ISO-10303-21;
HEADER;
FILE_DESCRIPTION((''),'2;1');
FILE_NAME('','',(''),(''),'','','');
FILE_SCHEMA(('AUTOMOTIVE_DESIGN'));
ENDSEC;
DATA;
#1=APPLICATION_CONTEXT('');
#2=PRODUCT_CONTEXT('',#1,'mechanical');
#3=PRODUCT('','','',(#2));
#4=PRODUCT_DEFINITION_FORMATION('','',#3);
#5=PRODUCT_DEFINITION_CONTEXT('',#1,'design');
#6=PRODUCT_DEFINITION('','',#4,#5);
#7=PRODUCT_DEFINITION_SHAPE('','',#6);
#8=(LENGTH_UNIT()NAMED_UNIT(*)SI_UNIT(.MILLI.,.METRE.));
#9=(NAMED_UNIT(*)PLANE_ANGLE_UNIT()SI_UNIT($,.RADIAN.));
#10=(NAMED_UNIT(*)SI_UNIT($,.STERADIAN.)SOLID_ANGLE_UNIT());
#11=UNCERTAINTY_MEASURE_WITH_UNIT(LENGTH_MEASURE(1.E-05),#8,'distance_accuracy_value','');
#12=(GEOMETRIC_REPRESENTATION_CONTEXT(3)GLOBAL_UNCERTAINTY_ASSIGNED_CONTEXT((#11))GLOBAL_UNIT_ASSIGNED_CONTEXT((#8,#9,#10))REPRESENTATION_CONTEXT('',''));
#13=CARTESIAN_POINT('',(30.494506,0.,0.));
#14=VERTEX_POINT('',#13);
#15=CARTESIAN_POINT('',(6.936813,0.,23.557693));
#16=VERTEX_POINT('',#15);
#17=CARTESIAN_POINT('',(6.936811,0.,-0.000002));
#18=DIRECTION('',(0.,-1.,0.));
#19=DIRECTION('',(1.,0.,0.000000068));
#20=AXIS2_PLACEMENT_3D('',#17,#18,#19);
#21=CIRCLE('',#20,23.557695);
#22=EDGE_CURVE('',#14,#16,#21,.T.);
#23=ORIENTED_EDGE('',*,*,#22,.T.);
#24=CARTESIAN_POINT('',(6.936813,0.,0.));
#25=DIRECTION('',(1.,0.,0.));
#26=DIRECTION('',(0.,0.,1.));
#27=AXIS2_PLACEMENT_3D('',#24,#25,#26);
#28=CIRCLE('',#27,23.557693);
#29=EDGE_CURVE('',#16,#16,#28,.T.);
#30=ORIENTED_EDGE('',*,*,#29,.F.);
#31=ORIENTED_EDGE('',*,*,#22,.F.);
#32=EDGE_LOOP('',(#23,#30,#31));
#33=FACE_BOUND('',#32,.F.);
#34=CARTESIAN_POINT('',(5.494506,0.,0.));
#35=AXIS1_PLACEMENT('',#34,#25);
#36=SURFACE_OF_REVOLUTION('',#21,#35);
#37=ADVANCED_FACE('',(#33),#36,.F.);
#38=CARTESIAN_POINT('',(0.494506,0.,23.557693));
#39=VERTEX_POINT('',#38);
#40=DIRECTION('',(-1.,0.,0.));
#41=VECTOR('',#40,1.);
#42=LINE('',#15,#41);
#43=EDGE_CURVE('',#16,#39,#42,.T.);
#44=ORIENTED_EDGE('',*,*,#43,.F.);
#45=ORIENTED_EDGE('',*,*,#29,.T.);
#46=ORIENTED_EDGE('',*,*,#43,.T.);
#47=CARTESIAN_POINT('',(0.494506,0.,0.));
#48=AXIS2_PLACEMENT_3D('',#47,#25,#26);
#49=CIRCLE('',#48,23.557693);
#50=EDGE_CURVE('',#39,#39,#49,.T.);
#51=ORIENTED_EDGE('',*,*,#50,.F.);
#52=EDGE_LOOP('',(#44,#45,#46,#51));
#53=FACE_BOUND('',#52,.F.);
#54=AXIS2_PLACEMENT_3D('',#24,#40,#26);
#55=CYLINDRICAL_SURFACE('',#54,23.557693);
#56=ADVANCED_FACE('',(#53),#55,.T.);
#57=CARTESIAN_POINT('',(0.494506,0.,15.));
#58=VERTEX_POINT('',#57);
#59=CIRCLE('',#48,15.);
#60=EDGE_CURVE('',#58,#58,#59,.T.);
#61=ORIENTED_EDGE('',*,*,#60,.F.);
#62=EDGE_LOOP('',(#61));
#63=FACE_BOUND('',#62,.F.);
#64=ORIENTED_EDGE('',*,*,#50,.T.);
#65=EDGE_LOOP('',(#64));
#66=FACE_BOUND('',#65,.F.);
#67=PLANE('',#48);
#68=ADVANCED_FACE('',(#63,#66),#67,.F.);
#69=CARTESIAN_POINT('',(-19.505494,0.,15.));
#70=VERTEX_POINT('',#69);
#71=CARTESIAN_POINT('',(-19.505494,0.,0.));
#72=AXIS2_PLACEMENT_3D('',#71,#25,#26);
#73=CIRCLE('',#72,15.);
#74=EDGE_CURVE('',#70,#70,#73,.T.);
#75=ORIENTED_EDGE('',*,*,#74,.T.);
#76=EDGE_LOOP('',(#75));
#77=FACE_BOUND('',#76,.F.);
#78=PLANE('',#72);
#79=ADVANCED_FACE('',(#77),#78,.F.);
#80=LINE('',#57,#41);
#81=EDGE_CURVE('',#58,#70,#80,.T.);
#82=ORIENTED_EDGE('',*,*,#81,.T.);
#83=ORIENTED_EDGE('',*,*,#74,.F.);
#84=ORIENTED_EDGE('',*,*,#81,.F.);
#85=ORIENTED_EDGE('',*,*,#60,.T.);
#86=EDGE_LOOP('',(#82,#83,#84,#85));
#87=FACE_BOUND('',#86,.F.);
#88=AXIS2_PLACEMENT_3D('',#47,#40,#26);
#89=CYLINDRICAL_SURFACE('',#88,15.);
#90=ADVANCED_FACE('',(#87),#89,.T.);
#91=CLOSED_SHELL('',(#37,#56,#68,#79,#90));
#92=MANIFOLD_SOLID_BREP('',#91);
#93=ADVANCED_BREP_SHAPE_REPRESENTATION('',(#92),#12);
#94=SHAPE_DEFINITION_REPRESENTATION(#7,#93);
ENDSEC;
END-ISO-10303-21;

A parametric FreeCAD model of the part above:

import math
import FreeCAD as App
import Part
import Sketcher
from FreeCAD import Vector
Q = App.Units.Quantity

doc = App.newDocument("Part")
body = doc.addObject("PartDesign::Body", "Body")

# Sketch on XZ plane
sketch1 = doc.addObject("Sketcher::SketchObject", "Sketch")
body.addObject(sketch1)
sketch1.AttachmentSupport = (doc.XZ_Plane, [""])
sketch1.MapMode = "FlatFace"
sketch1.addGeometry(Part.ArcOfCircle(Part.Circle(Vector(7, 0, 0), Vector(0, 0, 1), 24), math.radians(0), math.radians(90)), False)
sketch1.addGeometry(Part.LineSegment(Vector(7, 24, 0), Vector(0, 24, 0)), False)
sketch1.addGeometry(Part.LineSegment(Vector(0, 24, 0), Vector(0, 15, 0)), False)
sketch1.addGeometry(Part.LineSegment(Vector(0, 15, 0), Vector(-20, 15, 0)), False)
sketch1.addGeometry(Part.LineSegment(Vector(-20, 15, 0), Vector(-20, 0, 0)), False)
sketch1.addGeometry(Part.LineSegment(Vector(-20, 0, 0), Vector(30, 0, 0)), False)
sketch1.addConstraint(Sketcher.Constraint("Tangent", 0, 2, 1, 1))
sketch1.addConstraint(Sketcher.Constraint("Coincident", 1, 2, 2, 1))
sketch1.addConstraint(Sketcher.Constraint("Coincident", 2, 2, 3, 1))
sketch1.addConstraint(Sketcher.Constraint("Coincident", 3, 2, 4, 1))
sketch1.addConstraint(Sketcher.Constraint("Coincident", 4, 2, 5, 1))
sketch1.addConstraint(Sketcher.Constraint("Coincident", 5, 2, 0, 1))
sketch1.addConstraint(Sketcher.Constraint("Horizontal", 1))
sketch1.addConstraint(Sketcher.Constraint("Vertical", 2))
sketch1.addConstraint(Sketcher.Constraint("Horizontal", 3))
sketch1.addConstraint(Sketcher.Constraint("Vertical", 4))
sketch1.addConstraint(Sketcher.Constraint("Horizontal", 5))
sketch1.addConstraint(Sketcher.Constraint("PointOnObject", 0, 3, -1))
sketch1.addConstraint(Sketcher.Constraint("PointOnObject", 4, 2, -1))
sketch1.addConstraint(Sketcher.Constraint("DistanceX", 3, 2, 3, 1, Q("20 mm")))
sketch1.addConstraint(Sketcher.Constraint("DistanceX", 5, 1, 5, 2, Q("50 mm")))
sketch1.addConstraint(Sketcher.Constraint("DistanceY", 4, 2, 4, 1, Q("15 mm")))
sketch1.addConstraint(Sketcher.Constraint("Radius", 0, Q("23.557695 mm")))
sketch1.addConstraint(Sketcher.Constraint("DistanceX", -1, 1, 0, 3, Q("6.936811 mm")))
revolution = doc.addObject("PartDesign::Revolution", "Revolution")
body.addObject(revolution)
revolution.Profile = sketch1
revolution.ReferenceAxis = (sketch1, ["H_Axis"])
revolution.Angle = 360

doc.recompute()
